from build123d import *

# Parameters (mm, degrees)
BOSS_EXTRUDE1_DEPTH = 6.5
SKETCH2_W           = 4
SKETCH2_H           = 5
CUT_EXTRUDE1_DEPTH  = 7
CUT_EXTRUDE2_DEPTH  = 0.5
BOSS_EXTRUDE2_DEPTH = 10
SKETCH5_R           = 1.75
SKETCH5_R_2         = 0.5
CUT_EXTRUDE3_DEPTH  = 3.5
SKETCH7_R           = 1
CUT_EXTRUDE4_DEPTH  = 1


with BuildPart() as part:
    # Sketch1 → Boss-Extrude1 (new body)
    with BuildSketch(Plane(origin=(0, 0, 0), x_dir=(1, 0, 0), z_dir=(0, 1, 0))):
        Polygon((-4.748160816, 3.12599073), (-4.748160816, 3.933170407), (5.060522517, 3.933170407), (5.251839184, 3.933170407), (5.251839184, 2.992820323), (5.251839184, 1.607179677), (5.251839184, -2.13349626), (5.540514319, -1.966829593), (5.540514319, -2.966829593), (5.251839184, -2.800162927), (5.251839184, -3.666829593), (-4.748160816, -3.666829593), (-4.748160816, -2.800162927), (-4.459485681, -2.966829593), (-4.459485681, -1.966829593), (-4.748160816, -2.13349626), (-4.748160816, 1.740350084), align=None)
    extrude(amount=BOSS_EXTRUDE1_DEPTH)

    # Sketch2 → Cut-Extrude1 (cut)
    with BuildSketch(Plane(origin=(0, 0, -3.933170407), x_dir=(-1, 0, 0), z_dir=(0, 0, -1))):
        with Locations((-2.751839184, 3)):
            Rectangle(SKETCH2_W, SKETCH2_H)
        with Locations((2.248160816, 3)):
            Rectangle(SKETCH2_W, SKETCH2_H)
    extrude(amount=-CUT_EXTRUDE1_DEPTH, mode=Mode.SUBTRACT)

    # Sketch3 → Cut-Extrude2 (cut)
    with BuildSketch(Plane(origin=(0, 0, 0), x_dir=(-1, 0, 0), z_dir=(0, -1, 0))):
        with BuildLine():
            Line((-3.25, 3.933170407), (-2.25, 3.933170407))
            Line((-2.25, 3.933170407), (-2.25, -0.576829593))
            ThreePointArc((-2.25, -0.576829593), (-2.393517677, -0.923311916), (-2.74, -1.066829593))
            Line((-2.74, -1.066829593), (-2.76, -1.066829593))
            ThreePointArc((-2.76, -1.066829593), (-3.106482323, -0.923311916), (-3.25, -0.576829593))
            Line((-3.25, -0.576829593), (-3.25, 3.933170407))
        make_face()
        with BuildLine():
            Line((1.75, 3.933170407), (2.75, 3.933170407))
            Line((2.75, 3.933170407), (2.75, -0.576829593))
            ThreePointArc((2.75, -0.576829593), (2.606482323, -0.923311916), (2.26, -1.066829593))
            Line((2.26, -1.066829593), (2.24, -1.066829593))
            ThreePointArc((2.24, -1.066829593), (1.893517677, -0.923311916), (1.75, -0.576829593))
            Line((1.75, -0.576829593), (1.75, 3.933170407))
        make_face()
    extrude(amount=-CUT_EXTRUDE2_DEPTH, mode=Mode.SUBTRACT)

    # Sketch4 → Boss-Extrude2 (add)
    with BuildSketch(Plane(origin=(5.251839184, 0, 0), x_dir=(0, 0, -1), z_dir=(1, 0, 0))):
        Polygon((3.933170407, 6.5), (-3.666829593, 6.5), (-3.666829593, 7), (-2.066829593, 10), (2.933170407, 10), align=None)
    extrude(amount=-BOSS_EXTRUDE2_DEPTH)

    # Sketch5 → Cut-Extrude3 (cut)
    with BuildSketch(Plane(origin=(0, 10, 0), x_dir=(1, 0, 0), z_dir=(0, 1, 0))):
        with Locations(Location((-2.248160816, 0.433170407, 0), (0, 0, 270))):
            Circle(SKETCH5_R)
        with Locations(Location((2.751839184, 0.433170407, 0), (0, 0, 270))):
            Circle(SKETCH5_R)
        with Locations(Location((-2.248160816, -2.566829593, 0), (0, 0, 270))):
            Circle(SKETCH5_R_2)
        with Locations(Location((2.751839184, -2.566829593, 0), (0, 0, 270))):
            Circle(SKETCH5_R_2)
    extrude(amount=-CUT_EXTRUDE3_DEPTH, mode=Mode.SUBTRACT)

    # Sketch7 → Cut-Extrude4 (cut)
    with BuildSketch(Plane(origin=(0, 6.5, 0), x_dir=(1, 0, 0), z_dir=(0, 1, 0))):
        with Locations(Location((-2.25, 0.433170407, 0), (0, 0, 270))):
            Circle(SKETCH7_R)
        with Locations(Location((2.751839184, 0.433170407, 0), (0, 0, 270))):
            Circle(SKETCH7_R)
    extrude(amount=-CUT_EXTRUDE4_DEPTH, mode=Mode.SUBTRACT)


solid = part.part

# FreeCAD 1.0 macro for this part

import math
import FreeCAD as App
import Part
import Sketcher

V = App.Vector
Q = App.Units.Quantity


def add_polygon(sketch, points):
    """Adds a closed chain of lines whose ends are joined by coincident constraints."""
    first, n = sketch.GeometryCount, len(points)
    for a, b in zip(points, points[1:] + points[:1]):
        sketch.addGeometry(Part.LineSegment(App.Vector(*a, 0), App.Vector(*b, 0)), False)
    for i in range(n):
        sketch.addConstraint(Sketcher.Constraint("Coincident", first + i, 2, first + (i + 1) % n, 1))

doc = App.newDocument("Part")
body = doc.addObject("PartDesign::Body", "Body")

sketch1 = body.newObject("Sketcher::SketchObject", "Sketch")
sketch1.AttachmentSupport = (doc.getObject("XZ_Plane"), [""])
sketch1.MapMode = "FlatFace"
add_polygon(sketch1, [(-4.748161, -3.93317), (-4.748161, 2.133496), (-4.459486, 1.96683), (-4.459486, 2.96683), (-4.748161, 2.800163), (-4.748161, 3.66683), (5.251839, 3.66683), (5.251839, 2.800163), (5.540514, 2.96683), (5.540514, 1.96683), (5.251839, 2.133496), (5.251839, -3.93317)])
sketch1.addConstraint([
    Sketcher.Constraint("Vertical", 0),
    Sketcher.Constraint("Vertical", 2),
    Sketcher.Constraint("Vertical", 4),
    Sketcher.Constraint("Horizontal", 5),
    Sketcher.Constraint("Vertical", 6),
    Sketcher.Constraint("Vertical", 8),
    Sketcher.Constraint("Vertical", 10),
    Sketcher.Constraint("Horizontal", 11),
    Sketcher.Constraint("Parallel", 3, 7),
    Sketcher.Constraint("Parallel", 1, 9),
    Sketcher.Constraint("Horizontal", 3, 2, 6, 2),
    Sketcher.Constraint("Horizontal", 2, 2, 7, 2),
    Sketcher.Constraint("Horizontal", 1, 2, 8, 2),
    Sketcher.Constraint("Horizontal", 0, 2, 9, 2),
    Sketcher.Constraint("Vertical", 0, 2, 3, 2),
    Sketcher.Constraint("Equal", 1, 3),
    Sketcher.Constraint("DistanceX", 5, 1, 5, 2, 10.0),
    Sketcher.Constraint("DistanceY", 2, 1, 2, 2, 1.0),
    Sketcher.Constraint("Angle", 1, Q("-30 deg")),
    Sketcher.Constraint("DistanceY", 2, 2, 4, 2, 0.7),
    Sketcher.Constraint("DistanceY", 10, 2, 8, 2, 5.9),
    Sketcher.Constraint("DistanceY", 0, 1, 0, 2, 6.066667),
    Sketcher.Constraint("DistanceX", 0, 2, -1, 1, 4.748161),
    Sketcher.Constraint("DistanceY", -1, 1, 1, 2, 1.96683),
])
pad1 = body.newObject("PartDesign::Pad", "Pad")
pad1.Profile = sketch1
pad1.Length = 6.5
pad1.Reversed = True

sketch2 = body.newObject("Sketcher::SketchObject", "Sketch001")
sketch2.AttachmentSupport = (doc.getObject("XY_Plane"), [""])
sketch2.MapMode = "FlatFace"
sketch2.AttachmentOffset = App.Placement(V(0, 0, -3.93317), App.Rotation())
add_polygon(sketch2, [(4.751839, 5.5), (4.751839, 0.5), (0.751839, 0.5), (0.751839, 5.5)])
add_polygon(sketch2, [(-0.248161, 5.5), (-0.248161, 0.5), (-4.248161, 0.5), (-4.248161, 5.5)])
sketch2.addConstraint([
    Sketcher.Constraint("Vertical", 0),
    Sketcher.Constraint("Horizontal", 1),
    Sketcher.Constraint("Vertical", 2),
    Sketcher.Constraint("Horizontal", 3),
    Sketcher.Constraint("Vertical", 4),
    Sketcher.Constraint("Horizontal", 5),
    Sketcher.Constraint("Vertical", 6),
    Sketcher.Constraint("Horizontal", 7),
    Sketcher.Constraint("Horizontal", 1, 2, 4, 2),
    Sketcher.Constraint("Horizontal", 3, 2, 6, 2),
    Sketcher.Constraint("Equal", 3, 5),
    Sketcher.Constraint("DistanceX", 1, 2, 1, 1, 4.0),
    Sketcher.Constraint("DistanceY", 0, 2, 0, 1, 5.0),
    Sketcher.Constraint("DistanceX", 4, 2, 1, 2, 1.0),
    Sketcher.Constraint("DistanceY", -1, 1, 0, 2, 0.5),
    Sketcher.Constraint("DistanceX", -1, 1, 0, 2, 4.751839),
])
pocket1 = body.newObject("PartDesign::Pocket", "Pocket")
pocket1.Profile = sketch2
pocket1.Length = 7
pocket1.Reversed = True

sketch3 = body.newObject("Sketcher::SketchObject", "Sketch002")
sketch3.AttachmentSupport = (doc.getObject("XZ_Plane"), [""])
sketch3.MapMode = "FlatFace"
sketch3.addGeometry([
    Part.LineSegment(V(2.25, -3.93317, 0), V(3.25, -3.93317, 0)),
    Part.LineSegment(V(3.25, -3.93317, 0), V(3.25, 0.57683, 0)),
    Part.ArcOfCircle(Part.Circle(V(2.76, 0.57683, 0), V(0, 0, 1), 0.49), math.radians(0), math.radians(90)),
    Part.LineSegment(V(2.76, 1.06683, 0), V(2.74, 1.06683, 0)),
    Part.ArcOfCircle(Part.Circle(V(2.74, 0.57683, 0), V(0, 0, 1), 0.49), math.radians(90), math.radians(180)),
    Part.LineSegment(V(2.25, 0.57683, 0), V(2.25, -3.93317, 0)),
    Part.LineSegment(V(-2.75, -3.93317, 0), V(-1.75, -3.93317, 0)),
    Part.LineSegment(V(-1.75, -3.93317, 0), V(-1.75, 0.57683, 0)),
    Part.ArcOfCircle(Part.Circle(V(-2.24, 0.57683, 0), V(0, 0, 1), 0.49), math.radians(0), math.radians(90)),
    Part.LineSegment(V(-2.24, 1.06683, 0), V(-2.26, 1.06683, 0)),
    Part.ArcOfCircle(Part.Circle(V(-2.26, 0.57683, 0), V(0, 0, 1), 0.49), math.radians(90), math.radians(180)),
    Part.LineSegment(V(-2.75, 0.57683, 0), V(-2.75, -3.93317, 0)),
], False)
sketch3.addConstraint([
    Sketcher.Constraint("Coincident", 0, 2, 1, 1),
    Sketcher.Constraint("Tangent", 1, 2, 2, 1),
    Sketcher.Constraint("Tangent", 2, 2, 3, 1),
    Sketcher.Constraint("Tangent", 3, 2, 4, 1),
    Sketcher.Constraint("Tangent", 4, 2, 5, 1),
    Sketcher.Constraint("Coincident", 5, 2, 0, 1),
    Sketcher.Constraint("Coincident", 6, 2, 7, 1),
    Sketcher.Constraint("Tangent", 7, 2, 8, 1),
    Sketcher.Constraint("Tangent", 8, 2, 9, 1),
    Sketcher.Constraint("Tangent", 9, 2, 10, 1),
    Sketcher.Constraint("Tangent", 10, 2, 11, 1),
    Sketcher.Constraint("Coincident", 11, 2, 6, 1),
    Sketcher.Constraint("Horizontal", 0),
    Sketcher.Constraint("Vertical", 1),
    Sketcher.Constraint("Horizontal", 3),
    Sketcher.Constraint("Vertical", 5),
    Sketcher.Constraint("Horizontal", 6),
    Sketcher.Constraint("Vertical", 7),
    Sketcher.Constraint("Horizontal", 9),
    Sketcher.Constraint("Vertical", 11),
    Sketcher.Constraint("Equal", 2, 4),
    Sketcher.Constraint("Equal", 4, 8),
    Sketcher.Constraint("Equal", 8, 10),
    Sketcher.Constraint("Horizontal", 4, 3, 8, 3),
    Sketcher.Constraint("Horizontal", 5, 2, 6, 2),
    Sketcher.Constraint("Equal", 0, 6),
    Sketcher.Constraint("DistanceX", 0, 1, 0, 2, 1.0),
    Sketcher.Constraint("Radius", 2, 0.49),
    Sketcher.Constraint("DistanceX", 8, 3, 2, 3, 5.0),
    Sketcher.Constraint("DistanceY", 0, 2, 2, 2, 5.0),
    Sketcher.Constraint("DistanceX", -1, 1, 2, 3, 2.76),
    Sketcher.Constraint("DistanceY", -1, 1, 2, 3, 0.57683),
])
pocket2 = body.newObject("PartDesign::Pocket", "Pocket001")
pocket2.Profile = sketch3
pocket2.Length = 0.5

sketch4 = body.newObject("Sketcher::SketchObject", "Sketch003")
sketch4.AttachmentSupport = (doc.getObject("YZ_Plane"), [""])
sketch4.MapMode = "FlatFace"
sketch4.AttachmentOffset = App.Placement(V(0, 0, 5.251839), App.Rotation())
add_polygon(sketch4, [(6.5, 3.66683), (6.5, -3.93317), (10, -2.93317), (10, 2.06683), (7, 3.66683)])
sketch4.addConstraint([
    Sketcher.Constraint("Vertical", 0),
    Sketcher.Constraint("Vertical", 2),
    Sketcher.Constraint("Horizontal", 4),
    Sketcher.Constraint("DistanceY", 2, 1, 2, 2, 5.0),
    Sketcher.Constraint("DistanceX", 4, 2, 4, 1, 0.5),
    Sketcher.Constraint("DistanceY", 0, 2, 0, 1, 7.6),
    Sketcher.Constraint("DistanceX", -1, 1, 1, 2, 10.0),
    Sketcher.Constraint("DistanceX", -1, 1, 3, 2, 7.0),
    Sketcher.Constraint("DistanceY", 0, 2, 1, 2, 1.0),
    Sketcher.Constraint("DistanceY", 0, 2, -1, 1, 3.93317),
])
pad2 = body.newObject("PartDesign::Pad", "Pad001")
pad2.Profile = sketch4
pad2.Length = 10
pad2.Reversed = True

sketch5 = body.newObject("Sketcher::SketchObject", "Sketch004")
sketch5.AttachmentSupport = (doc.getObject("XZ_Plane"), [""])
sketch5.MapMode = "FlatFace"
sketch5.AttachmentOffset = App.Placement(V(0, 0, -10), App.Rotation())
sketch5.addGeometry([
    Part.Circle(V(-2.248161, -0.43317, 0), V(0, 0, 1), 1.75),
    Part.Circle(V(2.751839, -0.43317, 0), V(0, 0, 1), 1.75),
    Part.Circle(V(-2.248161, 2.56683, 0), V(0, 0, 1), 0.5),
    Part.Circle(V(2.751839, 2.56683, 0), V(0, 0, 1), 0.5),
], False)
sketch5.addConstraint([
    Sketcher.Constraint("Equal", 0, 1),
    Sketcher.Constraint("Equal", 2, 3),
    Sketcher.Constraint("Horizontal", 0, 3, 1, 3),
    Sketcher.Constraint("Horizontal", 2, 3, 3, 3),
    Sketcher.Constraint("Vertical", 0, 3, 2, 3),
    Sketcher.Constraint("Vertical", 1, 3, 3, 3),
    Sketcher.Constraint("Diameter", 2, 1.0),
    Sketcher.Constraint("Diameter", 0, 3.5),
    Sketcher.Constraint("DistanceX", 0, 3, 1, 3, 5.0),
    Sketcher.Constraint("DistanceY", 0, 3, 2, 3, 3.0),
    Sketcher.Constraint("DistanceX", 0, 3, -1, 1, 2.248161),
    Sketcher.Constraint("DistanceY", 0, 3, -1, 1, 0.43317),
])
pocket3 = body.newObject("PartDesign::Pocket", "Pocket002")
pocket3.Profile = sketch5
pocket3.Length = 3.5
pocket3.Reversed = True

sketch6 = body.newObject("Sketcher::SketchObject", "Sketch005")
sketch6.AttachmentSupport = (doc.getObject("XZ_Plane"), [""])
sketch6.MapMode = "FlatFace"
sketch6.AttachmentOffset = App.Placement(V(0, 0, -6.5), App.Rotation())
sketch6.addGeometry([
    Part.Circle(V(-2.25, -0.43317, 0), V(0, 0, 1), 1),
    Part.Circle(V(2.751839, -0.43317, 0), V(0, 0, 1), 1),
], False)
sketch6.addConstraint([
    Sketcher.Constraint("Equal", 0, 1),
    Sketcher.Constraint("Horizontal", 0, 3, 1, 3),
    Sketcher.Constraint("Diameter", 0, 2.0),
    Sketcher.Constraint("DistanceX", 0, 3, -1, 1, 2.25),
    Sketcher.Constraint("DistanceY", 0, 3, -1, 1, 0.43317),
    Sketcher.Constraint("DistanceX", -1, 1, 1, 3, 2.751839),
])
pocket4 = body.newObject("PartDesign::Pocket", "Pocket003")
pocket4.Profile = sketch6
pocket4.Length = 1
pocket4.Reversed = True

doc.recompute()
